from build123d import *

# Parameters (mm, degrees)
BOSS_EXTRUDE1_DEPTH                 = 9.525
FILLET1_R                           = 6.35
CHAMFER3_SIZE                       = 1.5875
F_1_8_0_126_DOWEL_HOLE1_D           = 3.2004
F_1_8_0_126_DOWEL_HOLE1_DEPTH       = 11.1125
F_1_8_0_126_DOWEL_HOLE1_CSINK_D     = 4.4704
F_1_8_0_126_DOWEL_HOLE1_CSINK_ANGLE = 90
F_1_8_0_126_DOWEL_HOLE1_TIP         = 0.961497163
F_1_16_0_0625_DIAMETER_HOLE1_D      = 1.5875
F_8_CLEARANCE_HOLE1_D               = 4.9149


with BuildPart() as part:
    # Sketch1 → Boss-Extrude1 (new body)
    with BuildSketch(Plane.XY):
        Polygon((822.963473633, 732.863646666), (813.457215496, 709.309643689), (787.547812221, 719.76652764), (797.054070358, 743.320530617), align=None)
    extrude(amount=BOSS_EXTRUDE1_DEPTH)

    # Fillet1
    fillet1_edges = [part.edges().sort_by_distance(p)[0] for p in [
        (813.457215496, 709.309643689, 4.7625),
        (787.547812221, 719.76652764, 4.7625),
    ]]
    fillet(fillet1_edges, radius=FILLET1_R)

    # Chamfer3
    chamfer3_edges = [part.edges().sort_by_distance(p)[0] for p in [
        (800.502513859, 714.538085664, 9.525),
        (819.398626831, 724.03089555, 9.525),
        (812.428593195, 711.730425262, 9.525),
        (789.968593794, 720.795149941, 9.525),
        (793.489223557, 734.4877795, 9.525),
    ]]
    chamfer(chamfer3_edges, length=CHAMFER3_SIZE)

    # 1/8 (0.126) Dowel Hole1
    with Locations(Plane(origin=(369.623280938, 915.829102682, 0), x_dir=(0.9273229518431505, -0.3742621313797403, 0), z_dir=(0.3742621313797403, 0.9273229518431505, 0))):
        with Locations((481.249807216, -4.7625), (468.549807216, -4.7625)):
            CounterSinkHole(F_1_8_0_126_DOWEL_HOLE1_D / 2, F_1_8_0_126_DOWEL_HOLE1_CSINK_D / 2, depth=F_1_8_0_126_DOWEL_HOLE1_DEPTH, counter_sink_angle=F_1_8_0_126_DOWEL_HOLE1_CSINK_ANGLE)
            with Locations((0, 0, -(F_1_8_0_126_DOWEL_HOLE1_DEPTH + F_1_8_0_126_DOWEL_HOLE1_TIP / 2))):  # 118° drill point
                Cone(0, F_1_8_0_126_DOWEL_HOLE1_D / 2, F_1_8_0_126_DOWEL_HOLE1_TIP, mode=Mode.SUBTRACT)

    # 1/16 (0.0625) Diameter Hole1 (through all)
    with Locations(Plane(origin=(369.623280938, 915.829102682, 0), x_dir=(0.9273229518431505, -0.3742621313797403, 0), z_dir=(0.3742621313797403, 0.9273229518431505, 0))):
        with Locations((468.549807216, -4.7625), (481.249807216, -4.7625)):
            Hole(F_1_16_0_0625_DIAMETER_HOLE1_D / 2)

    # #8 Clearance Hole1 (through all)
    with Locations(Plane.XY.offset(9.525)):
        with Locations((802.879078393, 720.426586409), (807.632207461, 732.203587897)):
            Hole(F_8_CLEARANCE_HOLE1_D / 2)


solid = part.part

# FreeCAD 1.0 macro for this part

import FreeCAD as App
import Part
import Sketcher
Q = App.Units.Quantity


def edges_at(feature, points):
    """Names of the edges that pass closest to the given points."""
    edges = feature.Shape.Edges
    near = lambda p: min(range(len(edges)), key=lambda i: edges[i].distToShape(Part.Vertex(*p))[0])
    return sorted({f"Edge{near(p) + 1}" for p in points})


def add_polygon(sketch, points):
    """Adds a closed chain of lines whose ends are joined by coincident constraints."""
    first, n = sketch.GeometryCount, len(points)
    for a, b in zip(points, points[1:] + points[:1]):
        sketch.addGeometry(Part.LineSegment(App.Vector(*a, 0), App.Vector(*b, 0)), False)
    for i in range(n):
        sketch.addConstraint(Sketcher.Constraint("Coincident", first + i, 2, first + (i + 1) % n, 1))

doc = App.newDocument("Part")
params = doc.addObject("Spreadsheet::Sheet", "Params")
for row, (alias, value) in enumerate([
    ("sketch1_length", "1 in"),
    ("sketch1_length2", "1.1 in"),
    ("pad1_length", "0.375 in"),
    ("fillet_radius", "0.25 in"),
    ("chamfer_size", "0.0625 in"),
    ("sketch2_diameter", "0.126 in"),
    ("hole_diameter", "0.126 in"),
    ("hole_depth", "0.4375 in"),
    ("hole_csink_diameter", "0.176 in"),
    ("sketch3_diameter", "0.0625 in"),
    ("hole2_diameter", "0.0625 in"),
    ("hole3_diameter", "0.1935 in"),
], start=1):
    params.set(f"A{row}", alias)
    params.set(f"B{row}", "=" + value)
    params.setAlias(f"B{row}", alias)

body = doc.addObject("PartDesign::Body", "Body")

# Sketch on XY plane
sketch1 = doc.addObject("Sketcher::SketchObject", "Sketch")
body.addObject(sketch1)
sketch1.AttachmentSupport = (doc.XY_Plane, [""])
sketch1.MapMode = "FlatFace"
add_polygon(sketch1, [(813.457215, 709.309644), (822.963474, 732.863647), (797.05407, 743.320531), (787.547812, 719.766528)])  # lines 0-3
sketch1.addConstraint([
    Sketcher.Constraint("Perpendicular", 0, 1),
    Sketcher.Constraint("Perpendicular", 1, 2),
    Sketcher.Constraint("Perpendicular", 2, 3),
    Sketcher.Constraint("Distance", 0, Q("1 in")),
    Sketcher.Constraint("Distance", 1, Q("1.1 in")),
    Sketcher.Constraint("DistanceX", -1, 1, 1, 2, 797.05407),
    Sketcher.Constraint("DistanceY", -1, 1, 1, 2, 743.320531),
    Sketcher.Constraint("DistanceX", 2, 2, 1, 2, 9.506258),
])
sketch1.setExpression("Constraints[7]", "Params.sketch1_length")
sketch1.setExpression("Constraints[8]", "Params.sketch1_length2")
pad1 = doc.addObject("PartDesign::Pad", "Pad")
body.addObject(pad1)
pad1.Profile = sketch1
pad1.setExpression("Length", "Params.pad1_length")
doc.recompute()

fillet = doc.addObject("PartDesign::Fillet", "Fillet")
body.addObject(fillet)
fillet.Base = (pad1, edges_at(pad1, [(813.457, 709.31, 4.763), (787.548, 719.767, 4.763)]))
fillet.setExpression("Radius", "Params.fillet_radius")
doc.recompute()

chamfer = doc.addObject("PartDesign::Chamfer", "Chamfer")
body.addObject(chamfer)
chamfer.Base = (fillet, edges_at(fillet, [
    (800.503, 714.538, 9.525),
    (819.399, 724.031, 9.525),
    (812.429, 711.73, 9.525),
    (789.969, 720.795, 9.525),
    (793.489, 734.488, 9.525),
]))
chamfer.setExpression("Size", "Params.chamfer_size")

# Sketch on an angled plane
sketch2 = doc.addObject("Sketcher::SketchObject", "Sketch001")
body.addObject(sketch2)
sketch2.Placement = App.Placement(App.Vector(369.623281, 915.829103, 0), App.Rotation(App.Vector(0.927322952, -0.374262131, 0), App.Vector(0, 0, -1), App.Vector(0.374262131, 0.927322952, 0), "ZXY"))
sketch2.addGeometry([
    Part.Circle(App.Vector(481.249807, -4.7625, 0), App.Vector(0, 0, 1), 1.6002),
    Part.Circle(App.Vector(468.549807, -4.7625, 0), App.Vector(0, 0, 1), 1.6002),
], False)
sketch2.addConstraint([
    Sketcher.Constraint("Equal", 0, 1),
    Sketcher.Constraint("Horizontal", 0, 3, 1, 3),
    Sketcher.Constraint("Diameter", 0, Q("0.126 in")),
    Sketcher.Constraint("DistanceX", 1, 3, 0, 3, Q("0.5 in")),
    Sketcher.Constraint("DistanceY", 0, 3, -1, 1, Q("0.1875 in")),
    Sketcher.Constraint("DistanceX", -1, 1, 0, 3, 481.249807),
])
sketch2.setExpression("Constraints[2]", "Params.sketch2_diameter")
doc.recompute()
hole = doc.addObject("PartDesign::Hole", "Hole")
body.addObject(hole)
hole.Profile = sketch2
hole.ThreadType = "None"
hole.setExpression("Diameter", "Params.hole_diameter")
hole.DepthType = "Dimension"
hole.setExpression("Depth", "Params.hole_depth")
hole.DrillPoint = "Angled"
hole.DrillPointAngle = 118
hole.HoleCutType = "Countersink"
hole.setExpression("HoleCutDiameter", "Params.hole_csink_diameter")
hole.HoleCutCountersinkAngle = 90

# Sketch on an angled plane
sketch3 = doc.addObject("Sketcher::SketchObject", "Sketch002")
body.addObject(sketch3)
sketch3.Placement = App.Placement(App.Vector(369.623281, 915.829103, 0), App.Rotation(App.Vector(0.927322952, -0.374262131, 0), App.Vector(0, 0, -1), App.Vector(0.374262131, 0.927322952, 0), "ZXY"))
sketch3.addGeometry([
    Part.Circle(App.Vector(468.549807, -4.7625, 0), App.Vector(0, 0, 1), 0.79375),
    Part.Circle(App.Vector(481.249807, -4.7625, 0), App.Vector(0, 0, 1), 0.79375),
], False)
sketch3.addConstraint([
    Sketcher.Constraint("Equal", 0, 1),
    Sketcher.Constraint("Horizontal", 0, 3, 1, 3),
    Sketcher.Constraint("Diameter", 0, Q("0.0625 in")),
    Sketcher.Constraint("DistanceX", 0, 3, 1, 3, Q("0.5 in")),
    Sketcher.Constraint("DistanceY", 0, 3, -1, 1, Q("0.1875 in")),
    Sketcher.Constraint("DistanceX", -1, 1, 0, 3, 468.549807),
])
sketch3.setExpression("Constraints[2]", "Params.sketch3_diameter")
doc.recompute()
hole2 = doc.addObject("PartDesign::Hole", "Hole001")
body.addObject(hole2)
hole2.Profile = sketch3
hole2.ThreadType = "None"
hole2.setExpression("Diameter", "Params.hole2_diameter")
hole2.DepthType = "ThroughAll"

# Sketch on XY plane
sketch4 = doc.addObject("Sketcher::SketchObject", "Sketch003")
body.addObject(sketch4)
sketch4.AttachmentSupport = (doc.XY_Plane, [""])
sketch4.MapMode = "FlatFace"
sketch4.AttachmentOffset = App.Placement(App.Vector(0, 0, 0.375 * 25.4), App.Rotation())
sketch4.addGeometry([
    Part.Circle(App.Vector(802.879078, 720.426586, 0), App.Vector(0, 0, 1), 2.45745),
    Part.Circle(App.Vector(807.632207, 732.203588, 0), App.Vector(0, 0, 1), 2.45745),
], False)
sketch4.addConstraint([
    Sketcher.Constraint("Equal", 0, 1),
    Sketcher.Constraint("Diameter", 0, Q("0.1935 in")),
    Sketcher.Constraint("DistanceY", 0, 3, 1, 3, 11.777001),
    Sketcher.Constraint("DistanceX", -1, 1, 0, 3, 802.879078),
    Sketcher.Constraint("DistanceX", 0, 3, 1, 3, 4.753129),
    Sketcher.Constraint("DistanceY", -1, 1, 0, 3, 720.426586),
])
doc.recompute()
hole3 = doc.addObject("PartDesign::Hole", "Hole002")
body.addObject(hole3)
hole3.Profile = sketch4
hole3.ThreadType = "None"
hole3.setExpression("Diameter", "Params.hole3_diameter")
hole3.DepthType = "ThroughAll"

doc.recompute()
